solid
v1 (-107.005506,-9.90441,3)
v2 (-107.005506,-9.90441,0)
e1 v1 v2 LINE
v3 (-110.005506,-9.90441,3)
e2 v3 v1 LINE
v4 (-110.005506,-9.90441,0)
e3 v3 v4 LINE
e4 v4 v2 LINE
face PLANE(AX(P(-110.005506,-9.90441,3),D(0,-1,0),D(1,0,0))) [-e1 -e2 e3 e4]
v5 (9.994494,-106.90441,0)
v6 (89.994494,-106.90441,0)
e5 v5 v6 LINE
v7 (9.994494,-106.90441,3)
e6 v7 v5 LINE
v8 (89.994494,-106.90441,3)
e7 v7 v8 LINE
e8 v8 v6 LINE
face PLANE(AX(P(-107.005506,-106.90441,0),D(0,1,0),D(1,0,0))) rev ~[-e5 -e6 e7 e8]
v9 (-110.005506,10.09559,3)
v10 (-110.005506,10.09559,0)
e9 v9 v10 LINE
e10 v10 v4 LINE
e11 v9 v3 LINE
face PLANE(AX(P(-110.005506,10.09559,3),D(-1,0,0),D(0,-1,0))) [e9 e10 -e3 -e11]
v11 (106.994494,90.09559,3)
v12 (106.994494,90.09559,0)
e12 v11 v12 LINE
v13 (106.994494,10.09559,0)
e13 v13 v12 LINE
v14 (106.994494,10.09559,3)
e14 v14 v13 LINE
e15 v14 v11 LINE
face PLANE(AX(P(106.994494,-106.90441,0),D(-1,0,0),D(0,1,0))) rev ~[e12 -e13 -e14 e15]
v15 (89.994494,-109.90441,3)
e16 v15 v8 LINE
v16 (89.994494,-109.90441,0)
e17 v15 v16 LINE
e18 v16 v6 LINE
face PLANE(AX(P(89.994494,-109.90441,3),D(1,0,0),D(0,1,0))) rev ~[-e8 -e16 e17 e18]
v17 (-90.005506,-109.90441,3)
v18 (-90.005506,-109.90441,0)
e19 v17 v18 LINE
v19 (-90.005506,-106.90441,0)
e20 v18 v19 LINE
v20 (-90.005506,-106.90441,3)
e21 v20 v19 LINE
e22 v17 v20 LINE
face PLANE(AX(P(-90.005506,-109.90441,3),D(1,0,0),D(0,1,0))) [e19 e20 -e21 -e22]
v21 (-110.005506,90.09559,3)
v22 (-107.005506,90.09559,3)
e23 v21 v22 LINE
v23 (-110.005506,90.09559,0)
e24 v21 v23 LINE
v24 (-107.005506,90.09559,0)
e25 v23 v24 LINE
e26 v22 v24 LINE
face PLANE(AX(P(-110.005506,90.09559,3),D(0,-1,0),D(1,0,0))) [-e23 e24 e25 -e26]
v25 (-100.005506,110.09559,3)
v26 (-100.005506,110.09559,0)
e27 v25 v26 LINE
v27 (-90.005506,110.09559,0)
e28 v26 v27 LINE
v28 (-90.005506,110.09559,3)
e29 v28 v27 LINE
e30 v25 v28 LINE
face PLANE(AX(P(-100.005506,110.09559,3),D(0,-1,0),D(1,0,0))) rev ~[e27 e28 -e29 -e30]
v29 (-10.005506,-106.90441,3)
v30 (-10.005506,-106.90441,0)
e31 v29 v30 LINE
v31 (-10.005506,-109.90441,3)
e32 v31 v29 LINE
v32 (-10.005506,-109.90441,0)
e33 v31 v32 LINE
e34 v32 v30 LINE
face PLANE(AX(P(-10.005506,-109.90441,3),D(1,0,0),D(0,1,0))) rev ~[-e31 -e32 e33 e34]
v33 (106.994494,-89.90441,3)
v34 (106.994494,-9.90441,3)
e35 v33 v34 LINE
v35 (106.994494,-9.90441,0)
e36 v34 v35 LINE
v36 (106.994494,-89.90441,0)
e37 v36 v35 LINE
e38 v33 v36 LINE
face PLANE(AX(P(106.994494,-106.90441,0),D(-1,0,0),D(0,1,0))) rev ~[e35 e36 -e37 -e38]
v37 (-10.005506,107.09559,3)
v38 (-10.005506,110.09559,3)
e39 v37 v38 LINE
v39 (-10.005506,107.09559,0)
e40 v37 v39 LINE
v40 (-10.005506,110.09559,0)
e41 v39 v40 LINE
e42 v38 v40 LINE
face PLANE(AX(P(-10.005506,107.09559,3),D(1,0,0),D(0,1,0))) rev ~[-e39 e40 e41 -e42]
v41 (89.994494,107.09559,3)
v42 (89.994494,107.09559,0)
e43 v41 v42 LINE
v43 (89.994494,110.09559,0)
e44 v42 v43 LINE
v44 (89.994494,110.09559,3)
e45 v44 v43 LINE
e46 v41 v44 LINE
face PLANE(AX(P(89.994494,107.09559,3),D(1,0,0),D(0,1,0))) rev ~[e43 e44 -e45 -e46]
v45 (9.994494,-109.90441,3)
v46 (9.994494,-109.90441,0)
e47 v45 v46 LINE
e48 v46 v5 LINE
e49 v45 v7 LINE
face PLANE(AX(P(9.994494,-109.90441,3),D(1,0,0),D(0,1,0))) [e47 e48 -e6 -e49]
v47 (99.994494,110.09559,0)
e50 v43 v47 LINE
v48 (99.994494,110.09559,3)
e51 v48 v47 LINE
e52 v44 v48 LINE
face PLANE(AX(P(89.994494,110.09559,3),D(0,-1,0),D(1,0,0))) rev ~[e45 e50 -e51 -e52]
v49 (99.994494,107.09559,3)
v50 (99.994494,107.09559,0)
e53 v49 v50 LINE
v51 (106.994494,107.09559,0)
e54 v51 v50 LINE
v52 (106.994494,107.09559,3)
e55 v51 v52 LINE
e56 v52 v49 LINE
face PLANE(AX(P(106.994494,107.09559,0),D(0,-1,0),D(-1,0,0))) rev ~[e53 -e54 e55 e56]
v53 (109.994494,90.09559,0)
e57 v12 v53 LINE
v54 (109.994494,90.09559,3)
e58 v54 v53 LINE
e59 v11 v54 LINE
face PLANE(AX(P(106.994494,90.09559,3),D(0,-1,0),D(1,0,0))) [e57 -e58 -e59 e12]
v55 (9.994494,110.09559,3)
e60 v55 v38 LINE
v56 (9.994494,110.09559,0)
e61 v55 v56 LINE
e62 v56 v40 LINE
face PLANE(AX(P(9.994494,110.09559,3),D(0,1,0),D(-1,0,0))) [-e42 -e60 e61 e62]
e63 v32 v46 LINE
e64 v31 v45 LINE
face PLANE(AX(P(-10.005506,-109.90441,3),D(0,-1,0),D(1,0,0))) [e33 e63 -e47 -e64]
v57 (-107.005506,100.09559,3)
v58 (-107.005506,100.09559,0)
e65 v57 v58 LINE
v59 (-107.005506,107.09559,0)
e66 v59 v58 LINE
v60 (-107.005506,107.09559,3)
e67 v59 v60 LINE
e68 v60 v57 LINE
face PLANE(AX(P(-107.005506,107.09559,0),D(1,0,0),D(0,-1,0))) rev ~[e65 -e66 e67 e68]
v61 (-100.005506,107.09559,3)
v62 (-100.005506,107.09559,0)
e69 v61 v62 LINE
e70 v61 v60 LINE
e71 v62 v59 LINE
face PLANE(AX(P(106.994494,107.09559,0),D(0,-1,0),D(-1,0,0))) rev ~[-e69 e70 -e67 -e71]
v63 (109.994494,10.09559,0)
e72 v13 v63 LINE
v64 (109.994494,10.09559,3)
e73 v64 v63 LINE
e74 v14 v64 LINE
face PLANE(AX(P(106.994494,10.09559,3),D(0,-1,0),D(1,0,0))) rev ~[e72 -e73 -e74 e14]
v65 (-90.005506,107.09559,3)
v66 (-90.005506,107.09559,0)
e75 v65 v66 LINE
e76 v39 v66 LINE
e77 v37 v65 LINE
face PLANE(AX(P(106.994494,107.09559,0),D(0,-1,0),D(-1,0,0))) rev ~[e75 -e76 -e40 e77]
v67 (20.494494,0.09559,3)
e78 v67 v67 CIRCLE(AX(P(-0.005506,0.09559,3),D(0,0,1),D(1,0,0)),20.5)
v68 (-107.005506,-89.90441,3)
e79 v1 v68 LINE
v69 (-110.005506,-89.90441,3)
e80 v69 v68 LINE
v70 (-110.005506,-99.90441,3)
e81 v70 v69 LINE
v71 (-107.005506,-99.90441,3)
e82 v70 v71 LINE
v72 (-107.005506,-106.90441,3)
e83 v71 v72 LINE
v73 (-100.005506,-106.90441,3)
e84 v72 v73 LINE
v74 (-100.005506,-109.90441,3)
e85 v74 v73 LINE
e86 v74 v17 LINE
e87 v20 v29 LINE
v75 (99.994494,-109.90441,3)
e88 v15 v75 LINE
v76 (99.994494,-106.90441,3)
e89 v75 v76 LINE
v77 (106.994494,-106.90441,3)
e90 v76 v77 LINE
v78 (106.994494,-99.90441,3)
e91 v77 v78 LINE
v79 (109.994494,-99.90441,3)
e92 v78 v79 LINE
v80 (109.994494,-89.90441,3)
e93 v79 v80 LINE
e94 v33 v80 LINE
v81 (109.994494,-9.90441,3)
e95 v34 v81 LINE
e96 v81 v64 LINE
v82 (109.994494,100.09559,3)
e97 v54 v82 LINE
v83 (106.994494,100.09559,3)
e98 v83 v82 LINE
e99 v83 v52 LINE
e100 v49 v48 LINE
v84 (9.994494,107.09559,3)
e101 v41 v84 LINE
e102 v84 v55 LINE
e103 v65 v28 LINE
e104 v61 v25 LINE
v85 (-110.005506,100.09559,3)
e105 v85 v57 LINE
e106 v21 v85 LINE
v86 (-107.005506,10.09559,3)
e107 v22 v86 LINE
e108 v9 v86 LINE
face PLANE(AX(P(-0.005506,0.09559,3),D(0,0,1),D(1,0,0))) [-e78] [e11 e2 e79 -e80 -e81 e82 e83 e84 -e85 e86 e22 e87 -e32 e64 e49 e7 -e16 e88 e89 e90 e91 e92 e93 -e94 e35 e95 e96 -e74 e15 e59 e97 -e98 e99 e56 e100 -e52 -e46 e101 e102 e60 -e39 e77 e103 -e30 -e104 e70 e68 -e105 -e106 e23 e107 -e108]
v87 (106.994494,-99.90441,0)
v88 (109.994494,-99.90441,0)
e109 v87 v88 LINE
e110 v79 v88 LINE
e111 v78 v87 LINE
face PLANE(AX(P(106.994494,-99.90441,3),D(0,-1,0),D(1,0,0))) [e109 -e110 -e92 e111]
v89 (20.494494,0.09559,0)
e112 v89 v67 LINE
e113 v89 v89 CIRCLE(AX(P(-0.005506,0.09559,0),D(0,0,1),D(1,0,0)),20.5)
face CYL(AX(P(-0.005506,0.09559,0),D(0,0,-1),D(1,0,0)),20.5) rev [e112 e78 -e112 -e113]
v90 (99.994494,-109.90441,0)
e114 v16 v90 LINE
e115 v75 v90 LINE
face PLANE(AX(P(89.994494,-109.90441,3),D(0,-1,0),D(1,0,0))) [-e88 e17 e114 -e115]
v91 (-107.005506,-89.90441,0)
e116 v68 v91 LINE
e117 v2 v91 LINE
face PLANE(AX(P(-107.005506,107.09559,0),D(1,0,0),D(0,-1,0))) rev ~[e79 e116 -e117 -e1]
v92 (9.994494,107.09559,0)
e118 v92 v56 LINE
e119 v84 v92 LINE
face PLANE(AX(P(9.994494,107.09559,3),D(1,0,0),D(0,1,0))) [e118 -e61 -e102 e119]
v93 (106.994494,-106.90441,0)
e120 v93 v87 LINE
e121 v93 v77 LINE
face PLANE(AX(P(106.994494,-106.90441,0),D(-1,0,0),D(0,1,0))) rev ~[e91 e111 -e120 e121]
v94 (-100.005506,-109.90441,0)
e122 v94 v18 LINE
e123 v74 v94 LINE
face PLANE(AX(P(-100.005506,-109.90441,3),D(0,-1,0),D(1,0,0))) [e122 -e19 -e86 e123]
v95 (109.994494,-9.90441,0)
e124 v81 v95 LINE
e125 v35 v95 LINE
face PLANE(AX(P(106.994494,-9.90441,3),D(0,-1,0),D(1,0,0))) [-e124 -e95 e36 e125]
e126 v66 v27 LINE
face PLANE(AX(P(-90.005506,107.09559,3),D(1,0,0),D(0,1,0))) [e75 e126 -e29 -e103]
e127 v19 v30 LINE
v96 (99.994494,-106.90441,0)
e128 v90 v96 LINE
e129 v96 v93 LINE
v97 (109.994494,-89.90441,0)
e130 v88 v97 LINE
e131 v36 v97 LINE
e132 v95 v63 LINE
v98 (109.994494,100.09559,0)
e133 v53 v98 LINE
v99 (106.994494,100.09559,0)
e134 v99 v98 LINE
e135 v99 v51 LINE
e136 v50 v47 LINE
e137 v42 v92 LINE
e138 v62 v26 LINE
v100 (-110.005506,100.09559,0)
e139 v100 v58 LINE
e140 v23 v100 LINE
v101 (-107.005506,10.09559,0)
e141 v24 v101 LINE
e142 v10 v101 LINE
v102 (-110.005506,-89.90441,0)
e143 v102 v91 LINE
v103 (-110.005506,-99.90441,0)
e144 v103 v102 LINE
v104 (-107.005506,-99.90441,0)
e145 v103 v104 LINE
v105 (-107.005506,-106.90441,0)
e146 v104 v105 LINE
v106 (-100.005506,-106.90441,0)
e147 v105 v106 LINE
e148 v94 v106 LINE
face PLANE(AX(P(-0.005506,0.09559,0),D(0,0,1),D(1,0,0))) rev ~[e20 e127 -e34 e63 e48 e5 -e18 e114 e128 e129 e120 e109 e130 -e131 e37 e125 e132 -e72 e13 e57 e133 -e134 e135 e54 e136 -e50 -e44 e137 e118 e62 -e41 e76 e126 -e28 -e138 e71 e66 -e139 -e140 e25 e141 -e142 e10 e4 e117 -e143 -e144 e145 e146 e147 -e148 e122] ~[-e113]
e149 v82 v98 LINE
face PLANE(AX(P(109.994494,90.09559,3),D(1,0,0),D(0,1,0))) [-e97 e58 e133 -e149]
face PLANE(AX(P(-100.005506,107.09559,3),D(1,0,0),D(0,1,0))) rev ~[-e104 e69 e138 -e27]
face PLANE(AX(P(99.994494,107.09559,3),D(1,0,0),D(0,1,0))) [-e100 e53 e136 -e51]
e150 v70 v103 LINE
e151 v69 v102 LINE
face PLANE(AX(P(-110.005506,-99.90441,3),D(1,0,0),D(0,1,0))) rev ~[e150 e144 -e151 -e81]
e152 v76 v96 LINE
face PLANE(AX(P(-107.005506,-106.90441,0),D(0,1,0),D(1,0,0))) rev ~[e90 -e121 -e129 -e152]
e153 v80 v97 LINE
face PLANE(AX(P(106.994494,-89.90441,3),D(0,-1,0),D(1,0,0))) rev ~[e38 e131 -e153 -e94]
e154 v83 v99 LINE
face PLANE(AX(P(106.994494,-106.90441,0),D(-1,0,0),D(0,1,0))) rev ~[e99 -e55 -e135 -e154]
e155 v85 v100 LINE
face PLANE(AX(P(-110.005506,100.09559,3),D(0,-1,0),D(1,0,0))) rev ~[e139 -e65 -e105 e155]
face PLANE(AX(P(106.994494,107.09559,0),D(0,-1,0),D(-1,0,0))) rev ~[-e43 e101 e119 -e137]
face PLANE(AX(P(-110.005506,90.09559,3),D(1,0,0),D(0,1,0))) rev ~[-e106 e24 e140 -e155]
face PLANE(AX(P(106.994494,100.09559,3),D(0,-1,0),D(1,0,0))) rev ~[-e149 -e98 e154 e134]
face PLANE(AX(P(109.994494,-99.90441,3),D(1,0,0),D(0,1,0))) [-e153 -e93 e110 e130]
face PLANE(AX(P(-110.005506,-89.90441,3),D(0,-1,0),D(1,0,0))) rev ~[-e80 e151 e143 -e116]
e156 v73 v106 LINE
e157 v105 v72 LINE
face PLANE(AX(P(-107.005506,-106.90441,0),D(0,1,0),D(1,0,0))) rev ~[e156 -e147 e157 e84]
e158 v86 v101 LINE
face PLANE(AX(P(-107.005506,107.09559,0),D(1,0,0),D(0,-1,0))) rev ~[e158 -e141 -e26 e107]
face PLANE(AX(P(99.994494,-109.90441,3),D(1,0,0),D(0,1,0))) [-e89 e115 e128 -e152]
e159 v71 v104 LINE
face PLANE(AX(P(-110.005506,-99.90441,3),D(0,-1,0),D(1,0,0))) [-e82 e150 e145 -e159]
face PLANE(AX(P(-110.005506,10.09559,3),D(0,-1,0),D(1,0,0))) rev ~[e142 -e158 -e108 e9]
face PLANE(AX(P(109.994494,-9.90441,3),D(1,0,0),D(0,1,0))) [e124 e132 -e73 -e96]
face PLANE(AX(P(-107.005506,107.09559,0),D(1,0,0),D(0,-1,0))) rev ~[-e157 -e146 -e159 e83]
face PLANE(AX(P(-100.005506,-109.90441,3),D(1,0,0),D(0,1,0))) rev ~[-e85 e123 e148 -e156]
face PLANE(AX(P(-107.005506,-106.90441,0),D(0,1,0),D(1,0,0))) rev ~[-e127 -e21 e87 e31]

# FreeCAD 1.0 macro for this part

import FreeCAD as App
import Part
import Sketcher
from FreeCAD import Vector
Q = App.Units.Quantity


def add_polygon(sketch, points):
    """Adds a closed chain of lines whose ends are joined by coincident constraints."""
    first, n = sketch.GeometryCount, len(points)
    for a, b in zip(points, points[1:] + points[:1]):
        sketch.addGeometry(Part.LineSegment(App.Vector(*a, 0), App.Vector(*b, 0)), False)
    for i in range(n):
        sketch.addConstraint(Sketcher.Constraint("Coincident", first + i, 2, first + (i + 1) % n, 1))

doc = App.newDocument("Part")
params = doc.addObject("Spreadsheet::Sheet", "Params")
for row, (alias, value) in enumerate([
    ("sketch1_diameter", "41 mm"),
    ("sketch1_width", "214 mm"),
    ("pad1_length", "3 mm"),
    ("sketch2_width", "20 mm"),
    ("sketch2_width2", "10 mm"),
    ("sketch2_width3", "3 mm"),
    ("pad2_length", "3 mm"),
], start=1):
    params.set(f"A{row}", alias)
    params.set(f"B{row}", "=" + value)
    params.setAlias(f"B{row}", alias)

body = doc.addObject("PartDesign::Body", "Body")

sketch1 = body.newObject("Sketcher::SketchObject", "Sketch")
sketch1.AttachmentSupport = (doc.getObject("XY_Plane"), [""])
sketch1.MapMode = "FlatFace"
add_polygon(sketch1, [(-107, 107), (-107, -107), (107, -107), (107, 107)])
sketch1.addGeometry(Part.Circle(Vector(0, 0, 0), Vector(0, 0, 1), 20), False)
sketch1.addConstraint([
    Sketcher.Constraint("Vertical", 0),
    Sketcher.Constraint("Horizontal", 1),
    Sketcher.Constraint("Vertical", 2),
    Sketcher.Constraint("Horizontal", 3),
    Sketcher.Constraint("Equal", 3, 0),
    Sketcher.Constraint("Diameter", 4, Q("41 mm")),
    Sketcher.Constraint("DistanceX", 1, 1, 1, 2, Q("214 mm")),
    Sketcher.Constraint("DistanceX", 0, 2, 4, 3, Q("107 mm")),
    Sketcher.Constraint("DistanceY", 0, 2, 4, 3, Q("107 mm")),
    Sketcher.Constraint("DistanceY", -1, 1, 4, 3, Q("0.09559 mm")),
    Sketcher.Constraint("DistanceX", 4, 3, -1, 1, Q("0.005506 mm")),
])
sketch1.setExpression("Constraints[9]", "Params.sketch1_diameter")
sketch1.setExpression("Constraints[10]", "Params.sketch1_width")
pad1 = body.newObject("PartDesign::Pad", "Pad")
pad1.Profile = sketch1
pad1.setExpression("Length", "Params.pad1_length")

sketch2 = body.newObject("Sketcher::SketchObject", "Sketch001")
sketch2.AttachmentSupport = (doc.getObject("XY_Plane"), [""])
sketch2.MapMode = "FlatFace"
sketch2.AttachmentOffset = App.Placement(Vector(0, 0, 3), App.Rotation())
add_polygon(sketch2, [(-10, 110.1), (-10, 107.1), (10, 107.1), (10, 110.1)])
add_polygon(sketch2, [(-100, 110.1), (-100, 107.1), (-90, 107.1), (-90, 110.1)])
add_polygon(sketch2, [(90, 110.1), (90, 107.1), (100, 107.1), (100, 110.1)])
add_polygon(sketch2, [(10, -109.9), (10, -106.9), (-10, -106.9), (-10, -109.9)])
add_polygon(sketch2, [(-100, -106.9), (-100, -109.9), (-90, -109.9), (-90, -106.9)])
add_polygon(sketch2, [(90, -106.9), (90, -109.9), (100, -109.9), (100, -106.9)])
add_polygon(sketch2, [(-110, -9.9), (-107, -9.9), (-107, 10.1), (-110, 10.1)])
add_polygon(sketch2, [(-110, -89.9), (-110, -99.9), (-107, -99.9), (-107, -89.9)])
add_polygon(sketch2, [(-110, 100.1), (-110, 90.1), (-107, 90.1), (-107, 100.1)])
add_polygon(sketch2, [(107, 10.1), (107, -9.9), (110, -9.9), (110, 10.1)])
add_polygon(sketch2, [(107, 100.1), (107, 90.1), (110, 90.1), (110, 100.1)])
add_polygon(sketch2, [(107, -89.9), (107, -99.9), (110, -99.9), (110, -89.9)])
sketch2.addConstraint([
    Sketcher.Constraint("Vertical", 0),
    Sketcher.Constraint("Horizontal", 1),
    Sketcher.Constraint("Vertical", 2),
    Sketcher.Constraint("Horizontal", 3),
    Sketcher.Constraint("Vertical", 4),
    Sketcher.Constraint("Horizontal", 5),
    Sketcher.Constraint("Vertical", 6),
    Sketcher.Constraint("Horizontal", 7),
    Sketcher.Constraint("Vertical", 8),
    Sketcher.Constraint("Horizontal", 9),
    Sketcher.Constraint("Vertical", 10),
    Sketcher.Constraint("Horizontal", 11),
    Sketcher.Constraint("Vertical", 12),
    Sketcher.Constraint("Horizontal", 13),
    Sketcher.Constraint("Vertical", 14),
    Sketcher.Constraint("Horizontal", 15),
    Sketcher.Constraint("Vertical", 16),
    Sketcher.Constraint("Horizontal", 17),
    Sketcher.Constraint("Vertical", 18),
    Sketcher.Constraint("Horizontal", 19),
    Sketcher.Constraint("Vertical", 20),
    Sketcher.Constraint("Horizontal", 21),
    Sketcher.Constraint("Vertical", 22),
    Sketcher.Constraint("Horizontal", 23),
    Sketcher.Constraint("Horizontal", 24),
    Sketcher.Constraint("Vertical", 25),
    Sketcher.Constraint("Horizontal", 26),
    Sketcher.Constraint("Vertical", 27),
    Sketcher.Constraint("Vertical", 28),
    Sketcher.Constraint("Horizontal", 29),
    Sketcher.Constraint("Vertical", 30),
    Sketcher.Constraint("Horizontal", 31),
    Sketcher.Constraint("Vertical", 32),
    Sketcher.Constraint("Horizontal", 33),
    Sketcher.Constraint("Vertical", 34),
    Sketcher.Constraint("Horizontal", 35),
    Sketcher.Constraint("Vertical", 36),
    Sketcher.Constraint("Horizontal", 37),
    Sketcher.Constraint("Vertical", 38),
    Sketcher.Constraint("Horizontal", 39),
    Sketcher.Constraint("Vertical", 40),
    Sketcher.Constraint("Horizontal", 41),
    Sketcher.Constraint("Vertical", 42),
    Sketcher.Constraint("Horizontal", 43),
    Sketcher.Constraint("Vertical", 44),
    Sketcher.Constraint("Horizontal", 45),
    Sketcher.Constraint("Vertical", 46),
    Sketcher.Constraint("Horizontal", 47),
    Sketcher.Constraint("Horizontal", 1, 2, 4, 2),
    Sketcher.Constraint("Horizontal", 3, 2, 6, 2),
    Sketcher.Constraint("Horizontal", 5, 2, 8, 2),
    Sketcher.Constraint("Horizontal", 7, 2, 10, 2),
    Sketcher.Constraint("Horizontal", 15, 2, 16, 2),
    Sketcher.Constraint("Horizontal", 13, 2, 18, 2),
    Sketcher.Constraint("Horizontal", 17, 2, 20, 2),
    Sketcher.Constraint("Horizontal", 19, 2, 22, 2),
    Sketcher.Constraint("Horizontal", 27, 2, 36, 2),
    Sketcher.Constraint("Horizontal", 26, 2, 38, 2),
    Sketcher.Constraint("Horizontal", 33, 2, 40, 2),
    Sketcher.Constraint("Horizontal", 35, 2, 42, 2),
    Sketcher.Constraint("Horizontal", 29, 2, 44, 2),
    Sketcher.Constraint("Horizontal", 31, 2, 46, 2),
    Sketcher.Constraint("Vertical", 2, 2, 12, 2),
    Sketcher.Constraint("Vertical", 3, 2, 13, 2),
    Sketcher.Constraint("Vertical", 7, 2, 16, 2),
    Sketcher.Constraint("Vertical", 6, 2, 17, 2),
    Sketcher.Constraint("Vertical", 11, 2, 20, 2),
    Sketcher.Constraint("Vertical", 10, 2, 21, 2),
    Sketcher.Constraint("Vertical", 27, 2, 28, 2),
    Sketcher.Constraint("Vertical", 25, 2, 29, 2),
    Sketcher.Constraint("Vertical", 31, 2, 32, 2),
    Sketcher.Constraint("Vertical", 30, 2, 33, 2),
    Sketcher.Constraint("Vertical", 39, 2, 40, 2),
    Sketcher.Constraint("Vertical", 38, 2, 41, 2),
    Sketcher.Constraint("Vertical", 43, 2, 44, 2),
    Sketcher.Constraint("Vertical", 42, 2, 45, 2),
    Sketcher.Constraint("Equal", 7, 9),
    Sketcher.Constraint("Equal", 35, 37),
    Sketcher.Constraint("Equal", 47, 0),
    Sketcher.Constraint("Equal", 10, 12),
    Sketcher.Constraint("Equal", 15, 25),
    Sketcher.Constraint("Equal", 23, 28),
    Sketcher.Constraint("Equal", 30, 32),
    Sketcher.Constraint("DistanceX", 1, 1, 1, 2, Q("20 mm")),
    Sketcher.Constraint("DistanceX", 5, 1, 5, 2, Q("10 mm")),
    Sketcher.Constraint("DistanceX", 24, 1, 24, 2, Q("3 mm")),
    Sketcher.Constraint("DistanceX", 4, 2, 0, 2, Q("90 mm")),
    Sketcher.Constraint("DistanceX", 1, 2, 8, 2, Q("80 mm")),
    Sketcher.Constraint("DistanceY", 12, 2, 1, 2, Q("214 mm")),
    Sketcher.Constraint("DistanceX", 24, 2, 19, 2, Q("7 mm")),
    Sketcher.Constraint("DistanceY", 19, 2, 24, 2, Q("97 mm")),
    Sketcher.Constraint("DistanceY", 19, 2, 28, 2, Q("7 mm")),
    Sketcher.Constraint("DistanceY", 32, 2, 4, 2, Q("17 mm")),
    Sketcher.Constraint("DistanceX", 22, 2, 36, 2, Q("7 mm")),
    Sketcher.Constraint("DistanceY", -1, 1, 0, 2, Q("107.09559 mm")),
    Sketcher.Constraint("DistanceX", 0, 2, -1, 1, Q("10.005506 mm")),
])
sketch2.setExpression("Constraints[131]", "Params.sketch2_width")
sketch2.setExpression("Constraints[132]", "Params.sketch2_width2")
sketch2.setExpression("Constraints[133]", "Params.sketch2_width3")
pad2 = body.newObject("PartDesign::Pad", "Pad001")
pad2.Profile = sketch2
pad2.setExpression("Length", "Params.pad2_length")
pad2.Reversed = True

doc.recompute()
